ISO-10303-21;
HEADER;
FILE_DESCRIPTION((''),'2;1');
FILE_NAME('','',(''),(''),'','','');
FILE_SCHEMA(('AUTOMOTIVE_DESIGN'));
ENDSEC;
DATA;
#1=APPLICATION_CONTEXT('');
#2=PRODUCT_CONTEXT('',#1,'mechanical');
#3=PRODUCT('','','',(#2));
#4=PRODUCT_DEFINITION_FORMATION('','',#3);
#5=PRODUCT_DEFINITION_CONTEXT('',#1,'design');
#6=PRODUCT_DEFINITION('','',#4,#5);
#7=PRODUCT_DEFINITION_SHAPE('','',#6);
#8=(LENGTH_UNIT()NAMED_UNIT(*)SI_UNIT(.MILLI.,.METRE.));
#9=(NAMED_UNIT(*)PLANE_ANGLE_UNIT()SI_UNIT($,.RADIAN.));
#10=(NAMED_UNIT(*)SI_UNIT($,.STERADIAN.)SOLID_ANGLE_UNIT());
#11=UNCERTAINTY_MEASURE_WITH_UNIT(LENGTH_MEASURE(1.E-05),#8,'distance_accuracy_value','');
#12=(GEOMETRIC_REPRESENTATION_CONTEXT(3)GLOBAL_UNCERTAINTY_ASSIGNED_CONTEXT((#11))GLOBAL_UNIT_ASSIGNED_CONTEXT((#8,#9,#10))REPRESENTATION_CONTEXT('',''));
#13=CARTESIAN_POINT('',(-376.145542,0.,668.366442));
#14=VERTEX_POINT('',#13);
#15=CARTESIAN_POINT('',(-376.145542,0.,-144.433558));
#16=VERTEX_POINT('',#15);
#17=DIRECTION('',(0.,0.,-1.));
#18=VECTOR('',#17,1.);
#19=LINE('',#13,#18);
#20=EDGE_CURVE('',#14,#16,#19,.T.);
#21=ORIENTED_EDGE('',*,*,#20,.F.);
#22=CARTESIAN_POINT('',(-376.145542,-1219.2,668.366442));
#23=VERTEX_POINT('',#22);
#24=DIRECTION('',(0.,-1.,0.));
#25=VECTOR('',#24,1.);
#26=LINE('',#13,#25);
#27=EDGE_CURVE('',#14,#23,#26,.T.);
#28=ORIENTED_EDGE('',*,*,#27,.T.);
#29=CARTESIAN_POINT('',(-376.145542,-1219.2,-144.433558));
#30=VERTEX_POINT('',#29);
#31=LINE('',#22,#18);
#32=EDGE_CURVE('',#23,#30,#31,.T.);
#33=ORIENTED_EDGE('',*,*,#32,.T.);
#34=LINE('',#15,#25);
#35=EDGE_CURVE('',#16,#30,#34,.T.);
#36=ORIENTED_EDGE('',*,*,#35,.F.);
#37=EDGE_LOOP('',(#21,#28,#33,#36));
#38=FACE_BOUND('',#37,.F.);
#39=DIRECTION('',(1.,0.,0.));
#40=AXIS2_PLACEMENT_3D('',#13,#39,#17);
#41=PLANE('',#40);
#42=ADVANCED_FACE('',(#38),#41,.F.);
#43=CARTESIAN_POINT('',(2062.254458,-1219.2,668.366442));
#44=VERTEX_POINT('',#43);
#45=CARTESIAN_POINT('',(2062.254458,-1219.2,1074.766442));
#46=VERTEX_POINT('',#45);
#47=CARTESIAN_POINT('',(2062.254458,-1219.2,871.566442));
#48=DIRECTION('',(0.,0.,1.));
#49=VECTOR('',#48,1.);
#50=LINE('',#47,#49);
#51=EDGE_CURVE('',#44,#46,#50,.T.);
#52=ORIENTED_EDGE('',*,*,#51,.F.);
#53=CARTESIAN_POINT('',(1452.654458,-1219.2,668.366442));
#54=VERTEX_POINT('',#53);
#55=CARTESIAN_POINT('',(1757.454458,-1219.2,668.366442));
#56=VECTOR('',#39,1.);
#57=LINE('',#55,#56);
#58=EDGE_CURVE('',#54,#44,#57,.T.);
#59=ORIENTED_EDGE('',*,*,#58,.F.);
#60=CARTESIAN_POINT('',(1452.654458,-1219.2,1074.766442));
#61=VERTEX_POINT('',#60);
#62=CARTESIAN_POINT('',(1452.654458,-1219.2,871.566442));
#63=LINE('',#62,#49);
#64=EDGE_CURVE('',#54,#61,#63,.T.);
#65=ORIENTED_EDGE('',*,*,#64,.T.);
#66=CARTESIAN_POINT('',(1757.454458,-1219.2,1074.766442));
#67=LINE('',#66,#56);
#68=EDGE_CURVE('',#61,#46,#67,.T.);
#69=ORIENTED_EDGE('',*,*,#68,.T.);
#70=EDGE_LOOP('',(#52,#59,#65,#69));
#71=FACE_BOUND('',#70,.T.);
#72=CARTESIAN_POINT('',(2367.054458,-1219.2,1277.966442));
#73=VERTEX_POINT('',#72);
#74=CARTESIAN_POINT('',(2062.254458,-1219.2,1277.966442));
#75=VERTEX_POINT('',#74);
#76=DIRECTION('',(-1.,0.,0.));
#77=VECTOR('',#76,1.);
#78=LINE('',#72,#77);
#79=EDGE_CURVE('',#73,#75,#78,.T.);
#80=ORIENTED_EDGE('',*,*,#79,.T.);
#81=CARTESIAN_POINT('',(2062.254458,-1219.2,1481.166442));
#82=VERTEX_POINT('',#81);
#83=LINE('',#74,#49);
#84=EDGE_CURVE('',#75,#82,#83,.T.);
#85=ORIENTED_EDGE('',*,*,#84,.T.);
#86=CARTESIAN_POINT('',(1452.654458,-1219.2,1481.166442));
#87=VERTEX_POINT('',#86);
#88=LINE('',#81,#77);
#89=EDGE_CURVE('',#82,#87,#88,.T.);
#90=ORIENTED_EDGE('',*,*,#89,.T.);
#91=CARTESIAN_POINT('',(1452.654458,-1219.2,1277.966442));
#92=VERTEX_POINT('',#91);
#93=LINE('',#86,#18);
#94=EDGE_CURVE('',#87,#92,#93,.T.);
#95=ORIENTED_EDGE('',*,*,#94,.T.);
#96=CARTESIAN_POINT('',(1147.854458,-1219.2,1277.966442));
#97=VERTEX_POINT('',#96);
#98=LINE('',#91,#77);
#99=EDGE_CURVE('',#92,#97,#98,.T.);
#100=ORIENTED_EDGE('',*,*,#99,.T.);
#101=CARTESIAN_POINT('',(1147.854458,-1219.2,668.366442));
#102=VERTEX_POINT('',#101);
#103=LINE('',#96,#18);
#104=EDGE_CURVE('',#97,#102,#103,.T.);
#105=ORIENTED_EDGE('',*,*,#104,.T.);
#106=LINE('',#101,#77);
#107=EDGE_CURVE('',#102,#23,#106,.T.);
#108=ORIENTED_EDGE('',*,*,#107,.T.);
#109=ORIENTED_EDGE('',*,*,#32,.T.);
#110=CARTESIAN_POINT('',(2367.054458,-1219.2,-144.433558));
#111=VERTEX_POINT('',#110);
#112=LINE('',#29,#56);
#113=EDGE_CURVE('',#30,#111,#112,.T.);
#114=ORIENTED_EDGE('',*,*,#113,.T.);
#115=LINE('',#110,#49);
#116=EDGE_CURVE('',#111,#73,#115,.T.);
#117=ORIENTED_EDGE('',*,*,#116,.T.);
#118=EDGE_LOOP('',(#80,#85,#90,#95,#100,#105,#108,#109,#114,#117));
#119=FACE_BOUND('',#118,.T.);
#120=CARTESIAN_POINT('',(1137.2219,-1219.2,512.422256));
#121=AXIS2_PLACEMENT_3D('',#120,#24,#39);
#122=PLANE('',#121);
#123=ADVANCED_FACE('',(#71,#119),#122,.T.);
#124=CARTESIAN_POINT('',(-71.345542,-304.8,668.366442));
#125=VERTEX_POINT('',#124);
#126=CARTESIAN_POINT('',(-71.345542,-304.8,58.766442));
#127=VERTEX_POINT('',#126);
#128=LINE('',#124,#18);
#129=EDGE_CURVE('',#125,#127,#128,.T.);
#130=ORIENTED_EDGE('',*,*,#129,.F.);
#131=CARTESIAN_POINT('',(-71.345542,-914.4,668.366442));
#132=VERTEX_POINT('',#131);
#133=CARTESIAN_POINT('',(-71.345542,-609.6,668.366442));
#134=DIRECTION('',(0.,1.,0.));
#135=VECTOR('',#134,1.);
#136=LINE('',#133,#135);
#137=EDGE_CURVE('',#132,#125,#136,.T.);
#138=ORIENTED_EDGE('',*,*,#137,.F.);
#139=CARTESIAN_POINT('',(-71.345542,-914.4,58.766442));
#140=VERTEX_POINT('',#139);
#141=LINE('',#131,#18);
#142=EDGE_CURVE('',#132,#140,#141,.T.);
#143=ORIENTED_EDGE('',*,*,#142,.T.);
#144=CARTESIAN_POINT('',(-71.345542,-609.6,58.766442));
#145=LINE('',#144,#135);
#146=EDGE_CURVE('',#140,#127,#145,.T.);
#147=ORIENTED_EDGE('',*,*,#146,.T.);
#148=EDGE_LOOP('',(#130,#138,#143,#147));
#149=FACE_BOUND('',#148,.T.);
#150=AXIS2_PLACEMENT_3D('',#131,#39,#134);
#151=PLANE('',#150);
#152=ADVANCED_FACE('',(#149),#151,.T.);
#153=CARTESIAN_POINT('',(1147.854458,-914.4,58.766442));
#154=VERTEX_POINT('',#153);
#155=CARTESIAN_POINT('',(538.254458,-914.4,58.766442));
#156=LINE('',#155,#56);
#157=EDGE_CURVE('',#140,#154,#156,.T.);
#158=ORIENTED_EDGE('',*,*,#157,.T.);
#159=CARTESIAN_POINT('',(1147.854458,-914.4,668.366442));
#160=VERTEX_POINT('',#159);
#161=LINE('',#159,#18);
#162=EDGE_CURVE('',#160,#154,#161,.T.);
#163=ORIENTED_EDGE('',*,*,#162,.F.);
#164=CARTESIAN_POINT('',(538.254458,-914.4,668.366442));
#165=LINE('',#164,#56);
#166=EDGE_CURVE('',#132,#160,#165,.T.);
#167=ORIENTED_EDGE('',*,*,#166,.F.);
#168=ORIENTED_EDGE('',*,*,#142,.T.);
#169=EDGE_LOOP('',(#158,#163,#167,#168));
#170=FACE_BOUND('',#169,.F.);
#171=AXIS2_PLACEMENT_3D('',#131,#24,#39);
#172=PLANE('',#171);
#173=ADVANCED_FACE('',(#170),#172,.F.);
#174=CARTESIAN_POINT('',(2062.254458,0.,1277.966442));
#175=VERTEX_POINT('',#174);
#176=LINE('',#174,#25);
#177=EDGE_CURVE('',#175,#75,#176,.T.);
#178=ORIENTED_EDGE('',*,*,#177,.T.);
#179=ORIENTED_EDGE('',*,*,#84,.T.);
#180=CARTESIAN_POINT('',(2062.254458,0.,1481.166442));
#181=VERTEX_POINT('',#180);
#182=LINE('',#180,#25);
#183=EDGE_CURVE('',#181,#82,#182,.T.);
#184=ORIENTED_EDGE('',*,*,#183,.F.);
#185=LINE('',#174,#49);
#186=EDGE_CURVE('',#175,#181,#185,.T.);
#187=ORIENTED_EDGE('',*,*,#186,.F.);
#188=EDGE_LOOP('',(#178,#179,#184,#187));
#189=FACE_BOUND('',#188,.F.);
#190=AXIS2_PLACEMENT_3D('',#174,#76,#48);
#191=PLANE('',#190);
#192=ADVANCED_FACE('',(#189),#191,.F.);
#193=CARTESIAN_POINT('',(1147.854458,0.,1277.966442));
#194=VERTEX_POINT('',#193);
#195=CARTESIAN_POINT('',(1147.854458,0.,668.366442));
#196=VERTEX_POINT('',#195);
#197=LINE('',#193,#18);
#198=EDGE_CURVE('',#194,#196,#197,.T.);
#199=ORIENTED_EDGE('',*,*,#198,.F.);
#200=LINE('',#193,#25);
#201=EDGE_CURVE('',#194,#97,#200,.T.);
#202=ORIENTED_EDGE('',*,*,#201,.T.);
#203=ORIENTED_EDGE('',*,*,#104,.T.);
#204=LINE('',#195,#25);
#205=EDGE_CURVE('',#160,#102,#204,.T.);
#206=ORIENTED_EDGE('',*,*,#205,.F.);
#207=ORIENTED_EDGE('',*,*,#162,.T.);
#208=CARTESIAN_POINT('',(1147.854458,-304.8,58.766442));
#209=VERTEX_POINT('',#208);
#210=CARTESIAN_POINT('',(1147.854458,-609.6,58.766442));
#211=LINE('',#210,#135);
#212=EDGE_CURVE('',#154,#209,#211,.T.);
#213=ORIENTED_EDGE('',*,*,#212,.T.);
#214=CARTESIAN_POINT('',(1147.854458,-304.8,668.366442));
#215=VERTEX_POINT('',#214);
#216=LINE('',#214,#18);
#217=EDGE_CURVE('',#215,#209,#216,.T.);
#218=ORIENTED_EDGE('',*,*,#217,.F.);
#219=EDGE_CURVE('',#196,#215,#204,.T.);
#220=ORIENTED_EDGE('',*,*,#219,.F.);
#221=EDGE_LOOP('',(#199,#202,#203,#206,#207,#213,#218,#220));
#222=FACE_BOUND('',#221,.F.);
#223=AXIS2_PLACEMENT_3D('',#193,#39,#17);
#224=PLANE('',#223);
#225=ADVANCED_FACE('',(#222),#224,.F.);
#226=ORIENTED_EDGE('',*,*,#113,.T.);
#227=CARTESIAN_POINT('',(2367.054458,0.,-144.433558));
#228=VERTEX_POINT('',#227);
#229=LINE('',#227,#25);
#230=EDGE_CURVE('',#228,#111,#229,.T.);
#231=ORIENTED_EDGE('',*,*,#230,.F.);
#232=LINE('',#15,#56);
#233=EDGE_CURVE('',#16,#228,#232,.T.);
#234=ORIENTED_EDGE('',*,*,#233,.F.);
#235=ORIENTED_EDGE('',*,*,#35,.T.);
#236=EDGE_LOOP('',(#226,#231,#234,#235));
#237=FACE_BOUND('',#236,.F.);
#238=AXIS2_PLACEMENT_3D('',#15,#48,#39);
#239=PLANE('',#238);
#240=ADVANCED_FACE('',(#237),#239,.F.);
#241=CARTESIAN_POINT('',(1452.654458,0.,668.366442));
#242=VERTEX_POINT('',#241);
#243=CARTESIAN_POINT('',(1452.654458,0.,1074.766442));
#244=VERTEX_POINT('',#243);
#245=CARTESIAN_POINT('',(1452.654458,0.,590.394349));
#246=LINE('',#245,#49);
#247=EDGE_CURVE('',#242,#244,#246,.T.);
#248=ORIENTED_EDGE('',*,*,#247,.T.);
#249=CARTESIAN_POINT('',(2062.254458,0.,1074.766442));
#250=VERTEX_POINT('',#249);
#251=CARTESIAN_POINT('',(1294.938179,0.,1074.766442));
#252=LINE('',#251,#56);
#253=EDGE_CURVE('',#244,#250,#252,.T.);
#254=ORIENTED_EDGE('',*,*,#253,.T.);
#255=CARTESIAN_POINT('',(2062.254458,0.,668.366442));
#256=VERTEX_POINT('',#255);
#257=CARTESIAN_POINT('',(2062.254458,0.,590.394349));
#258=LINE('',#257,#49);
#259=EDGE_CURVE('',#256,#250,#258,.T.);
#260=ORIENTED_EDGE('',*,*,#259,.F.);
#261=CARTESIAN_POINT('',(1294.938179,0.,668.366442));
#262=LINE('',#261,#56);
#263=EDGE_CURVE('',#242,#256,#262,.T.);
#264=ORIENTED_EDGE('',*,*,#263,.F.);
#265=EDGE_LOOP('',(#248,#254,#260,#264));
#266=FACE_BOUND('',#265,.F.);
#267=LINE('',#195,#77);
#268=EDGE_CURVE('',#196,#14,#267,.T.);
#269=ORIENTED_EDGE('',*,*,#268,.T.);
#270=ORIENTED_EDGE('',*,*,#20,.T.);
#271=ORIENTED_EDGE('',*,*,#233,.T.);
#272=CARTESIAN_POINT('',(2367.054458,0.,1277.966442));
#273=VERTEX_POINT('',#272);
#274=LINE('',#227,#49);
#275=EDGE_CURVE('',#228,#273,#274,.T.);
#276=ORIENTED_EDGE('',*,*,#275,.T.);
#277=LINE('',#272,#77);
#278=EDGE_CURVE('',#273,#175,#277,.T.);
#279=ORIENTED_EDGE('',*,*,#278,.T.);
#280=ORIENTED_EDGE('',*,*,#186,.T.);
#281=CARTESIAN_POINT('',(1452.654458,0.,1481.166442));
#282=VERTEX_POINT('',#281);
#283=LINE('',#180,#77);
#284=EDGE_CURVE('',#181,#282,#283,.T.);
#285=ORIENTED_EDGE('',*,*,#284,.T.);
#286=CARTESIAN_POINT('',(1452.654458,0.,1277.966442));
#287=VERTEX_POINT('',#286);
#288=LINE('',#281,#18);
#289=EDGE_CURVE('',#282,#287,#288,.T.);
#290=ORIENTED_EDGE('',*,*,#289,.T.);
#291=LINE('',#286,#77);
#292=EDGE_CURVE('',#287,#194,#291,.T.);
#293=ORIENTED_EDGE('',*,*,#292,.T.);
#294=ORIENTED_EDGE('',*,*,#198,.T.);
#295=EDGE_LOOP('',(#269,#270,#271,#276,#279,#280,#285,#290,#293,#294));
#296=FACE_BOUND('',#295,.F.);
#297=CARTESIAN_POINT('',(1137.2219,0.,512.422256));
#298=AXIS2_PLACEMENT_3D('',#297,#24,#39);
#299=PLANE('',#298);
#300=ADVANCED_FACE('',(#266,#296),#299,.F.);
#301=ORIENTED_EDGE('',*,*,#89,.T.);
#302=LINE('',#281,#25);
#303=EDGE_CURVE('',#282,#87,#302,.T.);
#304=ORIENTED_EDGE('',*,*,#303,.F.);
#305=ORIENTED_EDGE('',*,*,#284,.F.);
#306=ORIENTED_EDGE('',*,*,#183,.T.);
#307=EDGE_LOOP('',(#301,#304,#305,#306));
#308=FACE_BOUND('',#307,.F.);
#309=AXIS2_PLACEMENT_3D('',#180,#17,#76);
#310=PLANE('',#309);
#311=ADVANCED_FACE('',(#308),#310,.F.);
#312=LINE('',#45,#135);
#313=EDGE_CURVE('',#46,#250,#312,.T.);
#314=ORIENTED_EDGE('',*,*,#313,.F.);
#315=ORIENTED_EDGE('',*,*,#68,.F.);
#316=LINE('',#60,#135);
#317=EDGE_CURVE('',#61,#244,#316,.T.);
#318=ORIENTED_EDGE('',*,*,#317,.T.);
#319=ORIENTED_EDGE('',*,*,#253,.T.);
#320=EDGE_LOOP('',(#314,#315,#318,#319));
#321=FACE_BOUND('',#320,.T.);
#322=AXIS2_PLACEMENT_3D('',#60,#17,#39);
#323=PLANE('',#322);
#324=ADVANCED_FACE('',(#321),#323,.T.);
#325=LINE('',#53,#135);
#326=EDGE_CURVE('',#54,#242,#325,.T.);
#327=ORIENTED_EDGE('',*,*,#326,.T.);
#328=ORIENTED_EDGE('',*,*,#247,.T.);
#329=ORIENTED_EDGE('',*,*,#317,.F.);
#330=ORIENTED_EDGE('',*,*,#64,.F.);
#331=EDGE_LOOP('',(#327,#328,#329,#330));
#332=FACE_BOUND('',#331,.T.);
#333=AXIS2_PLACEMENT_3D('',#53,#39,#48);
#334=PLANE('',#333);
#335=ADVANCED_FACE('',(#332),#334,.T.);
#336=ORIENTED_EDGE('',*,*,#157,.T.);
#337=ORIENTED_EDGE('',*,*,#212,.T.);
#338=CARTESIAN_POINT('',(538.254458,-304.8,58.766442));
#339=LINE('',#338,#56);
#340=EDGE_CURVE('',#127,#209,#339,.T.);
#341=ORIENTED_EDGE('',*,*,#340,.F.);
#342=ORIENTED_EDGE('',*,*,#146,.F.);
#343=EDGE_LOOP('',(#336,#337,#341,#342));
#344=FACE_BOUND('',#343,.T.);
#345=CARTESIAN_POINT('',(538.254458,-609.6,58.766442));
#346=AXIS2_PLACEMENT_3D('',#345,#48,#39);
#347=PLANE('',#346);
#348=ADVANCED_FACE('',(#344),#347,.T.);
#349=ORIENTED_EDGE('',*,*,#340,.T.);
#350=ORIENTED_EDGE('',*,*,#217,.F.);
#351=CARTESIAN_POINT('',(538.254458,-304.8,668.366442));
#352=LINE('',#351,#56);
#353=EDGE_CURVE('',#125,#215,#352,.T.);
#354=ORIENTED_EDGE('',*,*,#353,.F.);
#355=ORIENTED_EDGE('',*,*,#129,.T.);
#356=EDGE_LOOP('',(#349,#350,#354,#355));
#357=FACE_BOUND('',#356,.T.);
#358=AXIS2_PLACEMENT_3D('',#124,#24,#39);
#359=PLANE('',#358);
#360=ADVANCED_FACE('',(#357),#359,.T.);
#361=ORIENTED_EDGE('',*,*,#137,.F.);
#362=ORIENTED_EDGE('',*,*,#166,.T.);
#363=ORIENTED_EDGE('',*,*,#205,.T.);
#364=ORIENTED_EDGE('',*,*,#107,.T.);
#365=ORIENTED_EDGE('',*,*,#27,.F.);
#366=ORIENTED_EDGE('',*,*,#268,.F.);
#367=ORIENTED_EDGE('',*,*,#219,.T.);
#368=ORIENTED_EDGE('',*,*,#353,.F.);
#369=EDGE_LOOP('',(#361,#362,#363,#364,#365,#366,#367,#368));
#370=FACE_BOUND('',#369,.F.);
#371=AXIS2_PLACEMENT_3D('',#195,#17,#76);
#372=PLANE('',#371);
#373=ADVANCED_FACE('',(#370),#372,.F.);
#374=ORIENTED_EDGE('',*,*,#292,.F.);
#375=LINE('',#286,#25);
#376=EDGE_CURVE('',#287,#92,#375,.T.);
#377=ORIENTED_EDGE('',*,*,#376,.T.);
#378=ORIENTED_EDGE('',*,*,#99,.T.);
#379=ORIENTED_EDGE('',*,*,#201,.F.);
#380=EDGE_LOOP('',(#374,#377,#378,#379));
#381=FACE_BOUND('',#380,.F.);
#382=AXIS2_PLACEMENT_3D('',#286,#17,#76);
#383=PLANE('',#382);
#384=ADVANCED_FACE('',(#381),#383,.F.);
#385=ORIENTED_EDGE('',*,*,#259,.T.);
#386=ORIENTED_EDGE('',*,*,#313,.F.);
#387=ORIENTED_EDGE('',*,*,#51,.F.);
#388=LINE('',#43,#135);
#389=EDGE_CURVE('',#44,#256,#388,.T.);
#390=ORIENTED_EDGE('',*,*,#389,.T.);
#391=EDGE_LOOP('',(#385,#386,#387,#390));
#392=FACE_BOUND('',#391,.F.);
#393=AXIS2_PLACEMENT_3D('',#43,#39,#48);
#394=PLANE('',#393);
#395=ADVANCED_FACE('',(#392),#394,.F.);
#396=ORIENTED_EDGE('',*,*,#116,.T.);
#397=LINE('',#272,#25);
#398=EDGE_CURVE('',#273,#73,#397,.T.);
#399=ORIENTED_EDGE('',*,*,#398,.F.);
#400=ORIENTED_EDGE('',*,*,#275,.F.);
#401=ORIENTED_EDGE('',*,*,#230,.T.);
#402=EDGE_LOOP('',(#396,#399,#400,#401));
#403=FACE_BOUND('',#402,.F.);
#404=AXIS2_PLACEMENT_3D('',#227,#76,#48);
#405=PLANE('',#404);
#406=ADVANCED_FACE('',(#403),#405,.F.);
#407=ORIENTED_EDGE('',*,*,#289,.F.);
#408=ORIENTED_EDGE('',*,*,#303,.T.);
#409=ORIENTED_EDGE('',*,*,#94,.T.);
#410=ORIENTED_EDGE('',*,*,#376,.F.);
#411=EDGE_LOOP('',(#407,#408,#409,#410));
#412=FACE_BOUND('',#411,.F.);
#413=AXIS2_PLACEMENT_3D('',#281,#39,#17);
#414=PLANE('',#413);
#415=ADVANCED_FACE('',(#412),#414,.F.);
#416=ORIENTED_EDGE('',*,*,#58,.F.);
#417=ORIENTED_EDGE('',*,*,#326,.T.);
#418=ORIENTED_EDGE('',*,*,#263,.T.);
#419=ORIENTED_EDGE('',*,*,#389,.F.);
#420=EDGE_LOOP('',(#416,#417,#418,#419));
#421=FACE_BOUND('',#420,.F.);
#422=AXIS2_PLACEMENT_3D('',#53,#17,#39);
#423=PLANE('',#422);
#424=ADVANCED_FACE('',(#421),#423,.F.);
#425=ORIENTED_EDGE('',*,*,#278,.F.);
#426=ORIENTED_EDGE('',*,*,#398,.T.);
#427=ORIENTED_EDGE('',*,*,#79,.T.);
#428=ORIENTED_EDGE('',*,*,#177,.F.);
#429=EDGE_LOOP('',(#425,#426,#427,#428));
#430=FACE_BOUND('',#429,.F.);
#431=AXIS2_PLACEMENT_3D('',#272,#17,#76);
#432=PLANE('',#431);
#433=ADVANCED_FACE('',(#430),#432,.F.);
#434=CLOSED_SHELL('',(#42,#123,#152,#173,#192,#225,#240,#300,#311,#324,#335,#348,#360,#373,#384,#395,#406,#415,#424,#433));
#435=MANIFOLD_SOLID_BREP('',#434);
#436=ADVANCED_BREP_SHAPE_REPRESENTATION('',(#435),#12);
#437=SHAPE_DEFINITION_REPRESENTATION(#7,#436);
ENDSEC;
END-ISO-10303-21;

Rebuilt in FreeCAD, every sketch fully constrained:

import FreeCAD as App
import Part
import Sketcher
from FreeCAD import Vector
Q = App.Units.Quantity

doc = App.newDocument("Part")
body = doc.addObject("PartDesign::Body", "Body")

# Sketch on XZ plane
sketch1 = body.newObject("Sketcher::SketchObject", "Sketch")
sketch1.AttachmentSupport = (doc.getObject("XZ_Plane"), [""])
sketch1.MapMode = "FlatFace"
sketch1.addGeometry([
    Part.LineSegment(Vector(-376, 668, 0), Vector(-376, -144, 0)),  # 0
    Part.LineSegment(Vector(-376, -144, 0), Vector(2367, -144, 0)),  # 1
    Part.LineSegment(Vector(2367, -144, 0), Vector(2367, 1278, 0)),  # 2
    Part.LineSegment(Vector(2367, 1278, 0), Vector(2062, 1278, 0)),  # 3
    Part.LineSegment(Vector(2062, 1278, 0), Vector(2062, 1481, 0)),  # 4
    Part.LineSegment(Vector(2062, 1481, 0), Vector(1453, 1481, 0)),  # 5
    Part.LineSegment(Vector(1453, 1481, 0), Vector(1453, 1278, 0)),  # 6
    Part.LineSegment(Vector(1453, 1278, 0), Vector(1148, 1278, 0)),  # 7
    Part.LineSegment(Vector(1148, 1278, 0), Vector(1148, 668, 0)),  # 8
    Part.LineSegment(Vector(1148, 668, 0), Vector(-376, 668, 0)),  # 9
], False)
sketch1.addConstraint([
    Sketcher.Constraint("Coincident", 0, 2, 1, 1),
    Sketcher.Constraint("Coincident", 1, 2, 2, 1),
    Sketcher.Constraint("Coincident", 2, 2, 3, 1),
    Sketcher.Constraint("Coincident", 3, 2, 4, 1),
    Sketcher.Constraint("Coincident", 4, 2, 5, 1),
    Sketcher.Constraint("Coincident", 5, 2, 6, 1),
    Sketcher.Constraint("Coincident", 6, 2, 7, 1),
    Sketcher.Constraint("Coincident", 7, 2, 8, 1),
    Sketcher.Constraint("Coincident", 8, 2, 9, 1),
    Sketcher.Constraint("Coincident", 9, 2, 0, 1),
    Sketcher.Constraint("Vertical", 0),
    Sketcher.Constraint("Horizontal", 1),
    Sketcher.Constraint("Vertical", 2),
    Sketcher.Constraint("Horizontal", 3),
    Sketcher.Constraint("Vertical", 4),
    Sketcher.Constraint("Horizontal", 5),
    Sketcher.Constraint("Vertical", 6),
    Sketcher.Constraint("Horizontal", 7),
    Sketcher.Constraint("Vertical", 8),
    Sketcher.Constraint("Horizontal", 9),
    Sketcher.Constraint("Horizontal", 3, 2, 6, 2),
    Sketcher.Constraint("Equal", 3, 7),
    Sketcher.Constraint("Equal", 5, 8),
    Sketcher.Constraint("DistanceX", 1, 1, 1, 2, Q("108 in")),
    Sketcher.Constraint("DistanceX", 3, 2, 3, 1, Q("12 in")),
    Sketcher.Constraint("DistanceX", 5, 2, 5, 1, Q("24 in")),
    Sketcher.Constraint("DistanceY", 0, 2, 0, 1, Q("32 in")),
    Sketcher.Constraint("DistanceY", 4, 1, 4, 2, Q("8 in")),
    Sketcher.Constraint("DistanceX", 0, 2, -1, 1, 376.145542),
    Sketcher.Constraint("DistanceY", 0, 2, -1, 1, 144.433558),
])
pad1 = body.newObject("PartDesign::Pad", "Pad")
pad1.Profile = sketch1
pad1.Length = Q("48 in")

# Sketch on XZ plane
sketch2 = body.newObject("Sketcher::SketchObject", "Sketch001")
sketch2.AttachmentSupport = (doc.getObject("XZ_Plane"), [""])
sketch2.MapMode = "FlatFace"
sketch2.AttachmentOffset = App.Placement(Vector(0, 0, 48 * 25.4), App.Rotation())
sketch2.addGeometry([
    Part.LineSegment(Vector(1453, 1075, 0), Vector(1453, 668, 0)),
    Part.LineSegment(Vector(1453, 668, 0), Vector(2062, 668, 0)),
    Part.LineSegment(Vector(2062, 668, 0), Vector(2062, 1075, 0)),
    Part.LineSegment(Vector(2062, 1075, 0), Vector(1453, 1075, 0)),
], False)
sketch2.addConstraint([
    Sketcher.Constraint("Coincident", 0, 2, 1, 1),
    Sketcher.Constraint("Coincident", 1, 2, 2, 1),
    Sketcher.Constraint("Coincident", 2, 2, 3, 1),
    Sketcher.Constraint("Coincident", 3, 2, 0, 1),
    Sketcher.Constraint("Vertical", 0),
    Sketcher.Constraint("Horizontal", 1),
    Sketcher.Constraint("Vertical", 2),
    Sketcher.Constraint("Horizontal", 3),
    Sketcher.Constraint("DistanceX", 1, 1, 1, 2, Q("24 in")),
    Sketcher.Constraint("DistanceY", 0, 2, 0, 1, Q("16 in")),
    Sketcher.Constraint("DistanceX", -1, 1, 0, 2, 1452.654458),
    Sketcher.Constraint("DistanceY", -1, 1, 0, 2, 668.366442),
])
pocket1 = body.newObject("PartDesign::Pocket", "Pocket")
pocket1.Profile = sketch2
pocket1.Type = "ThroughAll"

# Sketch on XY plane
sketch3 = body.newObject("Sketcher::SketchObject", "Sketch002")
sketch3.AttachmentSupport = (doc.getObject("XY_Plane"), [""])
sketch3.MapMode = "FlatFace"
sketch3.AttachmentOffset = App.Placement(Vector(0, 0, 668.366442), App.Rotation())
sketch3.addGeometry([
    Part.LineSegment(Vector(-71, -305, 0), Vector(-71, -914, 0)),
    Part.LineSegment(Vector(-71, -914, 0), Vector(1148, -914, 0)),
    Part.LineSegment(Vector(1148, -914, 0), Vector(1148, -305, 0)),
    Part.LineSegment(Vector(1148, -305, 0), Vector(-71, -305, 0)),
], False)
sketch3.addConstraint([
    Sketcher.Constraint("Coincident", 0, 2, 1, 1),
    Sketcher.Constraint("Coincident", 1, 2, 2, 1),
    Sketcher.Constraint("Coincident", 2, 2, 3, 1),
    Sketcher.Constraint("Coincident", 3, 2, 0, 1),
    Sketcher.Constraint("Vertical", 0),
    Sketcher.Constraint("Horizontal", 1),
    Sketcher.Constraint("Vertical", 2),
    Sketcher.Constraint("Horizontal", 3),
    Sketcher.Constraint("DistanceX", 1, 1, 1, 2, Q("48 in")),
    Sketcher.Constraint("DistanceY", 0, 2, 0, 1, Q("24 in")),
    Sketcher.Constraint("DistanceY", 0, 2, -1, 1, Q("36 in")),
    Sketcher.Constraint("DistanceX", 0, 2, -1, 1, 71.345542),
])
pocket2 = body.newObject("PartDesign::Pocket", "Pocket001")
pocket2.Profile = sketch3
pocket2.Length = Q("24 in")

doc.recompute()
